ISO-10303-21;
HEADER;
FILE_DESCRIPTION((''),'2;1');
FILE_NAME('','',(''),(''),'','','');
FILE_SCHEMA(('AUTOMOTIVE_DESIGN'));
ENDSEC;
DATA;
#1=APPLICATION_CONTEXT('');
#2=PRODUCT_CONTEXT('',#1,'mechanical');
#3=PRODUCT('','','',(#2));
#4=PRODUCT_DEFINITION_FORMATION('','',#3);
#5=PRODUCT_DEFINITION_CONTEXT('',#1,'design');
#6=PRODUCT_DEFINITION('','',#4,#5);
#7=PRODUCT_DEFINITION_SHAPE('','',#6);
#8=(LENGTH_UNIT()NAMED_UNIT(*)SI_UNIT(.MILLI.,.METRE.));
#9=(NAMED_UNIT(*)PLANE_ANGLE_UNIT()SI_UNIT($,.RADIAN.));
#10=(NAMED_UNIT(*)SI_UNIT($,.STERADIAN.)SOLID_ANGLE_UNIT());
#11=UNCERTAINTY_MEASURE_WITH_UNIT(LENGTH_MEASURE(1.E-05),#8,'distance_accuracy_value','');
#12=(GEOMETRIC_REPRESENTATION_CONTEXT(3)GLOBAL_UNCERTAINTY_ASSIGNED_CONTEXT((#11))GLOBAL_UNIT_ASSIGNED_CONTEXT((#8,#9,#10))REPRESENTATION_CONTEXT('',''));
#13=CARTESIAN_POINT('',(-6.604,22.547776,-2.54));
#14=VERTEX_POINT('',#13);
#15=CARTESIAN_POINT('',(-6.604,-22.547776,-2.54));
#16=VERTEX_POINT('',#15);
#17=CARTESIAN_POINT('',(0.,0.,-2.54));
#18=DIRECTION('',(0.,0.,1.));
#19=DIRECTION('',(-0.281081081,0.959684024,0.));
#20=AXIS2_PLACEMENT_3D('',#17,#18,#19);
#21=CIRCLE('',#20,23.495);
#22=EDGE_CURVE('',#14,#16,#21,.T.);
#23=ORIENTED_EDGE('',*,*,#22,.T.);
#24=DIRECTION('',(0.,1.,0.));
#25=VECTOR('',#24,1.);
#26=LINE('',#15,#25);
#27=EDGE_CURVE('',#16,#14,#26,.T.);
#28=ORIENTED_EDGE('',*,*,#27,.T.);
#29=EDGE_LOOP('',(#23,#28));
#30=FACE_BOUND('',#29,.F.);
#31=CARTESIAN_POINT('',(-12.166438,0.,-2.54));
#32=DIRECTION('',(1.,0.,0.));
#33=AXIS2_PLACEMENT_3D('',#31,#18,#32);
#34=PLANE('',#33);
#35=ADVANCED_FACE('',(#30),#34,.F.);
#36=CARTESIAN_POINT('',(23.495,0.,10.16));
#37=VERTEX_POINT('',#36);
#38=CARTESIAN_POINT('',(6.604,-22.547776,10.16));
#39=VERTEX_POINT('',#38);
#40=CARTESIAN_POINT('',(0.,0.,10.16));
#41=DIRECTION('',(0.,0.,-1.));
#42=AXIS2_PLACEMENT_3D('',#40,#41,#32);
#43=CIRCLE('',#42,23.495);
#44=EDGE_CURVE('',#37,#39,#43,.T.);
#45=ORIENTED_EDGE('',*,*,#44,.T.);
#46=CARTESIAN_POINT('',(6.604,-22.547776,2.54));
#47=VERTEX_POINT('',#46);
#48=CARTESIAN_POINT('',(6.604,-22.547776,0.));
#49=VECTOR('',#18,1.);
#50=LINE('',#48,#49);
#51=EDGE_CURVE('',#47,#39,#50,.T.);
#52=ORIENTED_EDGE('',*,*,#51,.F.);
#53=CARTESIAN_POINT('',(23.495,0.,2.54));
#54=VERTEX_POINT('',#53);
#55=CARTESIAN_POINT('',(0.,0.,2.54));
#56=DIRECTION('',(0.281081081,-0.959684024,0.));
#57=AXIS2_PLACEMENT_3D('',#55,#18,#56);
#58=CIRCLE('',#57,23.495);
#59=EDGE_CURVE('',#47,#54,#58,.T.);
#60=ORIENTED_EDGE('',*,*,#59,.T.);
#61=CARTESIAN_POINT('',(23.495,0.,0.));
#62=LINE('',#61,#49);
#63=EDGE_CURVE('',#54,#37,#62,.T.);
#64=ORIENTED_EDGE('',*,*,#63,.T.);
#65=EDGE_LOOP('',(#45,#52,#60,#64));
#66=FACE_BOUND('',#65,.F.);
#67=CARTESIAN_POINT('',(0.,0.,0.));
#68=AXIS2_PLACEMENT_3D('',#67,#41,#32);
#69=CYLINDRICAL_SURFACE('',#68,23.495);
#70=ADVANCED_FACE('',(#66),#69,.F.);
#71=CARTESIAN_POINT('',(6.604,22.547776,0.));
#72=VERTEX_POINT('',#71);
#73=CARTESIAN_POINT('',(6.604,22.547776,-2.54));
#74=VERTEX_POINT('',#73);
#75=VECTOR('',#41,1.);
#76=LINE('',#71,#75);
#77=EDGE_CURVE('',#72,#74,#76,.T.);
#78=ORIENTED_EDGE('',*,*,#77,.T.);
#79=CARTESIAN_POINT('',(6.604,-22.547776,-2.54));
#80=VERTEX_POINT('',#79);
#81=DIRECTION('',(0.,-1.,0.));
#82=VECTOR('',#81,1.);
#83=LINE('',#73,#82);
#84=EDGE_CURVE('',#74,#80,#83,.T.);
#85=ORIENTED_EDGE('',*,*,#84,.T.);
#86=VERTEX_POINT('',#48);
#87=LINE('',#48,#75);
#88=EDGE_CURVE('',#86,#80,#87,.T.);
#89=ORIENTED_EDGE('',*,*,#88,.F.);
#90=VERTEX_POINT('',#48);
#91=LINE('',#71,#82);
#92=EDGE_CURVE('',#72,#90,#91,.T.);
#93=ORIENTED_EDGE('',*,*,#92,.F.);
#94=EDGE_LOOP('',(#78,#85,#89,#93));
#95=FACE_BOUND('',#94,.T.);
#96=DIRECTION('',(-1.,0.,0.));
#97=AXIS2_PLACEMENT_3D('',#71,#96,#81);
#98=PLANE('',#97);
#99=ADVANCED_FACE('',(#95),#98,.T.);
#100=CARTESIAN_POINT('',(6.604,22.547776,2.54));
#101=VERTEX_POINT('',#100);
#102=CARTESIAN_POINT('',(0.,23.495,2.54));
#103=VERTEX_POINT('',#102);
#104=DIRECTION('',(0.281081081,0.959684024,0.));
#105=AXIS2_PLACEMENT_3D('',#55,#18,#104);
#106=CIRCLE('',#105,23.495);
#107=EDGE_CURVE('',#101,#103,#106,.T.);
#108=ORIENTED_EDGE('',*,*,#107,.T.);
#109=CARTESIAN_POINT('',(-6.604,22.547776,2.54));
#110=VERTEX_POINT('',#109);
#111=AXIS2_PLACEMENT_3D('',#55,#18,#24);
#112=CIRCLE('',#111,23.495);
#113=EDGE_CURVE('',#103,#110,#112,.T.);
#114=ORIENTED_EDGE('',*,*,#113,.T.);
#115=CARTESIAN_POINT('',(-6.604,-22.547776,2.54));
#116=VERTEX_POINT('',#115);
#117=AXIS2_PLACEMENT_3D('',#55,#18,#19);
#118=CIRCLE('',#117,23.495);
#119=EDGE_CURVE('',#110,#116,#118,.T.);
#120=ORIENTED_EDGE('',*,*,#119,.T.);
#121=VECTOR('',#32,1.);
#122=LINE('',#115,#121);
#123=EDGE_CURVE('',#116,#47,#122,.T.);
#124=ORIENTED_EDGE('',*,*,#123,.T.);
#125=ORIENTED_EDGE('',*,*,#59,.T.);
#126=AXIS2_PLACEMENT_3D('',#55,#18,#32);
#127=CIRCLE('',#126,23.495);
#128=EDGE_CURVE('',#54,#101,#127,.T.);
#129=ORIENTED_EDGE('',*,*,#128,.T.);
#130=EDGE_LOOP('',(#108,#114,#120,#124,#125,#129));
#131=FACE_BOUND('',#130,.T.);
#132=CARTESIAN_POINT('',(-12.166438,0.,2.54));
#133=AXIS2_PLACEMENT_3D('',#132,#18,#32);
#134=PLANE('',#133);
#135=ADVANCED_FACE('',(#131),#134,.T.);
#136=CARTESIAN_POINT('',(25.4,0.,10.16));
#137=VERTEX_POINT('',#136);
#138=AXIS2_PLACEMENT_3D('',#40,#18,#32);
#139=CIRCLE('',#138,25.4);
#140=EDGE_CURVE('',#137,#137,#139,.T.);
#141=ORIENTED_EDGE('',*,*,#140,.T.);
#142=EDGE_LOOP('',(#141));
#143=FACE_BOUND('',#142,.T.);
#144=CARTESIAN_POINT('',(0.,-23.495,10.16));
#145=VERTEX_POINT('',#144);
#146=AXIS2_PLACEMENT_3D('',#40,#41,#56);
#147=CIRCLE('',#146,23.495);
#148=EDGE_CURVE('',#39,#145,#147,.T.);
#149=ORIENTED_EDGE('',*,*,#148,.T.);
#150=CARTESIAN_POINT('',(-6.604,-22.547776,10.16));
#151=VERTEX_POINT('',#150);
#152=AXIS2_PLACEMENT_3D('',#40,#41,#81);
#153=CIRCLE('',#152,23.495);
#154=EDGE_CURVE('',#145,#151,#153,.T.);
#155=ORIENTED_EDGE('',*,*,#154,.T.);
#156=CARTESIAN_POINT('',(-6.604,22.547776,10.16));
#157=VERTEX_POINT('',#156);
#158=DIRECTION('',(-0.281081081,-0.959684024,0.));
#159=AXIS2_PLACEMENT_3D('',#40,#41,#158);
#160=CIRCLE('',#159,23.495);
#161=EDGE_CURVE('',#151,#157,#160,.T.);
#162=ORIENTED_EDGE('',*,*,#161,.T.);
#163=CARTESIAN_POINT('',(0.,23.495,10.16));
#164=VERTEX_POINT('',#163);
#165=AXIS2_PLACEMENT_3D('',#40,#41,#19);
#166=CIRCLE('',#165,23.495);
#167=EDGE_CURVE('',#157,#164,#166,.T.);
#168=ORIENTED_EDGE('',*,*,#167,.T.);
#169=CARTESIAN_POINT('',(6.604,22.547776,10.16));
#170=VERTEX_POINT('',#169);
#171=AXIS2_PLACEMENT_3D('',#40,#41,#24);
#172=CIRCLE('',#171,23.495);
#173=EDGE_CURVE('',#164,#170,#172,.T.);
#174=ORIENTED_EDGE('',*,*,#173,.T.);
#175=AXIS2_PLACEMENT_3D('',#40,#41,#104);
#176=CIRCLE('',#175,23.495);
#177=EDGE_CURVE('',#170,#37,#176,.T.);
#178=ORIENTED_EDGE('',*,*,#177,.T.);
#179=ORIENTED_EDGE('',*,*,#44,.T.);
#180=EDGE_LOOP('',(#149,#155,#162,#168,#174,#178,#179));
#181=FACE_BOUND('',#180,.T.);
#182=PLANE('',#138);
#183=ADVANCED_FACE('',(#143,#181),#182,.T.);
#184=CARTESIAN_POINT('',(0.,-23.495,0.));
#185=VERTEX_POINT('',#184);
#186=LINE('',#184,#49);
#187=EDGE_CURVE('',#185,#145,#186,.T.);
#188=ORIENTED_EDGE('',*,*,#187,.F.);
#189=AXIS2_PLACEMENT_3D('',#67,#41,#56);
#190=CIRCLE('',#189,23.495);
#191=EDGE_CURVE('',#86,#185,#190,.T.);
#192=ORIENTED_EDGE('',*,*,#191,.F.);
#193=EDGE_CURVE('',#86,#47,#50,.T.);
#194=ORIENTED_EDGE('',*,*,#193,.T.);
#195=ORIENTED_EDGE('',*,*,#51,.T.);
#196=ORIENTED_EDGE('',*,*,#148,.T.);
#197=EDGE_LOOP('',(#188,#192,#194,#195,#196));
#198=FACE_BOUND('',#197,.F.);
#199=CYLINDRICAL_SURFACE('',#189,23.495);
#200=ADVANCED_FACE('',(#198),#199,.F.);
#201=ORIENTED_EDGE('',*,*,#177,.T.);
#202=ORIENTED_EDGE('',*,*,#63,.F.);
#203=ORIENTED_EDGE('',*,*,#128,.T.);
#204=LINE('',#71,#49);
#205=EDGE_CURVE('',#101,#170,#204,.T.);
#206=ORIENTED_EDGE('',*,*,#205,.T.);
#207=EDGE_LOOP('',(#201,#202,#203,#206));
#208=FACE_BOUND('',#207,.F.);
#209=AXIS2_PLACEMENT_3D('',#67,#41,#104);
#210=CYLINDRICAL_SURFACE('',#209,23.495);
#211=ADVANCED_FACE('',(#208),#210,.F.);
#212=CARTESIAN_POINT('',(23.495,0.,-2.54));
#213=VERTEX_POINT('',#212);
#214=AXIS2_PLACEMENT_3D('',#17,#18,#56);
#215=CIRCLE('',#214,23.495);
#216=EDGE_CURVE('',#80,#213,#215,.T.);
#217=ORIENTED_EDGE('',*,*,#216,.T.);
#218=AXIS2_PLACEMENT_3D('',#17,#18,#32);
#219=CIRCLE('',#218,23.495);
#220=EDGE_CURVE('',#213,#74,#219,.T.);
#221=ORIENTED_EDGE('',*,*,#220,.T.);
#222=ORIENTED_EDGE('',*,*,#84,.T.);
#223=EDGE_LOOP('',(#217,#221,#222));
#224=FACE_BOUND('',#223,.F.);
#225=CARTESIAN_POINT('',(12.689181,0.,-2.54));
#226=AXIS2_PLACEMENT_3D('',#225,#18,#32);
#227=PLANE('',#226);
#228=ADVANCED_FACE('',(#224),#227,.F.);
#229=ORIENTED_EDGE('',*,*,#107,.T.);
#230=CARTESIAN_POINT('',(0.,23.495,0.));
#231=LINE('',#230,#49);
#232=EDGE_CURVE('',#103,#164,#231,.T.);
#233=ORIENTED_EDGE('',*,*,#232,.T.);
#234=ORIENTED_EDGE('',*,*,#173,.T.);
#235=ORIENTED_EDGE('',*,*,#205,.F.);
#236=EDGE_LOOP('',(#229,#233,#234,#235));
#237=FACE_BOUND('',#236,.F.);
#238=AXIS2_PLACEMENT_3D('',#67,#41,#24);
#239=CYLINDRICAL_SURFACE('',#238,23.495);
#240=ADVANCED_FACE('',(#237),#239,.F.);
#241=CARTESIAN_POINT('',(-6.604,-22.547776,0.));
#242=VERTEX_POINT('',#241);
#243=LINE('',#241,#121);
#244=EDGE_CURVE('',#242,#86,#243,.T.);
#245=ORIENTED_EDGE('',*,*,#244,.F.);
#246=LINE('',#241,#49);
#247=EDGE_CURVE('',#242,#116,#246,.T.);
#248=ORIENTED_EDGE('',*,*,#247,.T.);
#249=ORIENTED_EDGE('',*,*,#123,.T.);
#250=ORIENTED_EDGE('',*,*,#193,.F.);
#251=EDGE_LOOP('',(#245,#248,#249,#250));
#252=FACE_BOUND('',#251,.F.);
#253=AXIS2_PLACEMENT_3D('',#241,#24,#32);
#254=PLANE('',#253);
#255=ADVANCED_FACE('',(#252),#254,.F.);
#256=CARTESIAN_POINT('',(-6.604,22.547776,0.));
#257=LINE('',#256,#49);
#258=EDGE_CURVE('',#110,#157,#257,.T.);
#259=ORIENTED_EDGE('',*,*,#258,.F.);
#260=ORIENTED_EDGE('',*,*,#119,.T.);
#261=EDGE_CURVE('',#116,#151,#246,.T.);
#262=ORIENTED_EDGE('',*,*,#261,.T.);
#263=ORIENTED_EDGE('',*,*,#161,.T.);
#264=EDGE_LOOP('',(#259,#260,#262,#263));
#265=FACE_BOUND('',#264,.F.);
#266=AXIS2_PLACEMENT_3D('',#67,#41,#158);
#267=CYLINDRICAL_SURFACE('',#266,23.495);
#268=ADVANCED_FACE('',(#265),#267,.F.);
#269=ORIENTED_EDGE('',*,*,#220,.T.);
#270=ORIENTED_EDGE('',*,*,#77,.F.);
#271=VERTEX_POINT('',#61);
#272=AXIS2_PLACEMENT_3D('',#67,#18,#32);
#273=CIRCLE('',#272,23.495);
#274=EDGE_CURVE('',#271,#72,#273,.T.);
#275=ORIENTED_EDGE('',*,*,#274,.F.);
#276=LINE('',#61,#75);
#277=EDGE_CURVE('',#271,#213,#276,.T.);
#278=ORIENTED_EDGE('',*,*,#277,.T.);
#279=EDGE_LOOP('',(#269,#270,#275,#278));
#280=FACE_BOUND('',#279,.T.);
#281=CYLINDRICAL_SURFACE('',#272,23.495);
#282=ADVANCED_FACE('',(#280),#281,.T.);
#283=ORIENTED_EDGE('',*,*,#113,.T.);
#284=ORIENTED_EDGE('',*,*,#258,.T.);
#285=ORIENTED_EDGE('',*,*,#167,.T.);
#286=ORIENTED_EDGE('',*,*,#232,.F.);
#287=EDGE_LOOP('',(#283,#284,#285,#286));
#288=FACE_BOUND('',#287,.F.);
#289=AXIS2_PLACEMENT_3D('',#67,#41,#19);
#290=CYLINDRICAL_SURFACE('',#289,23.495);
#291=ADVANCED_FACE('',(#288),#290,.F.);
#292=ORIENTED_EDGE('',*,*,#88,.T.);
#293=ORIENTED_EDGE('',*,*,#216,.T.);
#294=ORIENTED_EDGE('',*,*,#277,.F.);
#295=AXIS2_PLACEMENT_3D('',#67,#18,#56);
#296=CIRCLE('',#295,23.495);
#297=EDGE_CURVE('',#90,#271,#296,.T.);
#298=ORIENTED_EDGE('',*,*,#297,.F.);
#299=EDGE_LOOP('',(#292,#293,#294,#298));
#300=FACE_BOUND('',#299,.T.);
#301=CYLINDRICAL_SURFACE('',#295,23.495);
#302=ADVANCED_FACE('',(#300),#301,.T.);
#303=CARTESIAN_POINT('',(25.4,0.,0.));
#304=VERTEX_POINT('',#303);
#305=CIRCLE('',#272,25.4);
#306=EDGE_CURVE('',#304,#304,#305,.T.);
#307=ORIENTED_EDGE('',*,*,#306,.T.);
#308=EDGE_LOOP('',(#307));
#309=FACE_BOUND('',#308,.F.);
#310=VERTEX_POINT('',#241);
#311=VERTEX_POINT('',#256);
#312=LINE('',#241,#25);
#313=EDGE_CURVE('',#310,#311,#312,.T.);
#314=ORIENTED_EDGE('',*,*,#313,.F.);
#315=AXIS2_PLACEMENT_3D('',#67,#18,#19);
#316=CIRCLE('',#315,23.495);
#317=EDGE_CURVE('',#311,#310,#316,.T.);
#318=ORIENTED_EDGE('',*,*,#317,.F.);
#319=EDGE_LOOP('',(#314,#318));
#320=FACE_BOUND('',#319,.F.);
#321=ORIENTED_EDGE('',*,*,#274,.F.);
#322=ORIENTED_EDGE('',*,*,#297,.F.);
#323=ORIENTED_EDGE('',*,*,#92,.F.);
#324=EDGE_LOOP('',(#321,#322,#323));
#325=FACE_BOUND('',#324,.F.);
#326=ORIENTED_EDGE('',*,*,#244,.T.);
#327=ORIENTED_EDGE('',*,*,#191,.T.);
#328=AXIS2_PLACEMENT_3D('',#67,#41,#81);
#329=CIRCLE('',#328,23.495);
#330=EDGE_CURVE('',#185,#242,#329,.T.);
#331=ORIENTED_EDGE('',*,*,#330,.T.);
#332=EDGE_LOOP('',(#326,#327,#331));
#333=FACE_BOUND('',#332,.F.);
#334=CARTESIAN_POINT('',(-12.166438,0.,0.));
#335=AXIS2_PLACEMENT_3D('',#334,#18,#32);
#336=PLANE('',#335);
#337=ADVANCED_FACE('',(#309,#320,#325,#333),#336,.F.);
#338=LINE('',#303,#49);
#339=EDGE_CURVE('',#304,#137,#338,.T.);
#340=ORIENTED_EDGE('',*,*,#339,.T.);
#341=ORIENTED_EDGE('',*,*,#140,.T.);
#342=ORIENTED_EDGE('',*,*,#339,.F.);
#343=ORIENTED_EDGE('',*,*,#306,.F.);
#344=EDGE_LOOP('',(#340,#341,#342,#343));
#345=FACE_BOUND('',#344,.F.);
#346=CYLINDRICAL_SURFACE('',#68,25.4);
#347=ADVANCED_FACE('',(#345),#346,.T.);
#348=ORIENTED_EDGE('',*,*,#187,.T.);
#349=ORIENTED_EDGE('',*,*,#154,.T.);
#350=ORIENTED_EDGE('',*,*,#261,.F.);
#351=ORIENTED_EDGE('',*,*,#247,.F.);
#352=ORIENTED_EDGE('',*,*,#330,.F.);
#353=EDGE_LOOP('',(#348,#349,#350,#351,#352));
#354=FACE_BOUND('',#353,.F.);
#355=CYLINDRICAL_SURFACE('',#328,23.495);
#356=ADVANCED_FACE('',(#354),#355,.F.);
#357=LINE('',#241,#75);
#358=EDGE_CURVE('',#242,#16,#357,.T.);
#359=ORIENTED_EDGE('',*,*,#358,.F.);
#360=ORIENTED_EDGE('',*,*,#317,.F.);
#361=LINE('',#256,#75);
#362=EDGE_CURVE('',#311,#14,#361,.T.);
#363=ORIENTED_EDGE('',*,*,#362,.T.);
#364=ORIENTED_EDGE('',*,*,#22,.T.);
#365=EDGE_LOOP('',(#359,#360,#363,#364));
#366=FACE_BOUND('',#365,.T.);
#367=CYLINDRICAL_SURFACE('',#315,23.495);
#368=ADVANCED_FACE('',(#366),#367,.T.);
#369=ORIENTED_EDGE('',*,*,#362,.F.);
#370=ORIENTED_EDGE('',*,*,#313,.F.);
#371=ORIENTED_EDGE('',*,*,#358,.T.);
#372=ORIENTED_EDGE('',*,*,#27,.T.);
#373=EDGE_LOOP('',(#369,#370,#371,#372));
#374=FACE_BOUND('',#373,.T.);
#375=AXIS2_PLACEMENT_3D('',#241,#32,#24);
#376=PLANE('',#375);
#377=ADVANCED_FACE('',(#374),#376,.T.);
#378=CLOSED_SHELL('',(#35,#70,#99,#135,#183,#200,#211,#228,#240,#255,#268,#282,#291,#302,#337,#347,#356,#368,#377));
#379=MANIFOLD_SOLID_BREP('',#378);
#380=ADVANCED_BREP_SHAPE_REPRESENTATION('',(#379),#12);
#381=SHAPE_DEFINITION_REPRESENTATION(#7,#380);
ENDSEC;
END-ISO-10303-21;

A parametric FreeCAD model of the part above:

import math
import FreeCAD as App
import Part
import Sketcher
from FreeCAD import Vector
Q = App.Units.Quantity

doc = App.newDocument("Part")
body = doc.addObject("PartDesign::Body", "Body")

sketch1 = body.newObject("Sketcher::SketchObject", "Sketch")
sketch1.AttachmentSupport = (doc.getObject("XY_Plane"), [""])
sketch1.MapMode = "FlatFace"
sketch1.addGeometry([
    Part.Circle(Vector(0, 0, 0), Vector(0, 0, 1), 25.4),
    Part.ArcOfCircle(Part.Circle(Vector(0, 0, 0), Vector(0, 0, 1), 23.495), math.radians(-90), math.radians(-73.675262)),
    Part.ArcOfCircle(Part.Circle(Vector(0, 0, 0), Vector(0, 0, 1), 23.495), math.radians(-106.324738), math.radians(-90)),
    Part.ArcOfCircle(Part.Circle(Vector(0, 0, 0), Vector(0, 0, 1), 23.495), math.radians(106.324738), math.radians(253.675262)),
    Part.ArcOfCircle(Part.Circle(Vector(0, 0, 0), Vector(0, 0, 1), 23.495), math.radians(90), math.radians(106.324738)),
    Part.ArcOfCircle(Part.Circle(Vector(0, 0, 0), Vector(0, 0, 1), 23.495), math.radians(73.675262), math.radians(90)),
    Part.ArcOfCircle(Part.Circle(Vector(0, 0, 0), Vector(0, 0, 1), 23.495), math.radians(0), math.radians(73.675262)),
    Part.ArcOfCircle(Part.Circle(Vector(0, 0, 0), Vector(0, 0, 1), 23.495), math.radians(-73.675262), math.radians(0)),
], False)
sketch1.addConstraint([
    Sketcher.Constraint("Tangent", 1, 1, 2, 2),
    Sketcher.Constraint("Tangent", 2, 1, 3, 2),
    Sketcher.Constraint("Tangent", 3, 1, 4, 2),
    Sketcher.Constraint("Tangent", 4, 1, 5, 2),
    Sketcher.Constraint("Tangent", 5, 1, 6, 2),
    Sketcher.Constraint("Tangent", 6, 1, 7, 2),
    Sketcher.Constraint("Tangent", 7, 1, 1, 2),
    Sketcher.Constraint("Coincident", 0, 3, -1, 1),
    Sketcher.Constraint("Coincident", 1, 3, -1, 1),
    Sketcher.Constraint("Coincident", 3, 3, -1, 1),
    Sketcher.Constraint("Coincident", 5, 3, -1, 1),
    Sketcher.Constraint("PointOnObject", 1, 1, -2),
    Sketcher.Constraint("PointOnObject", 4, 1, -2),
    Sketcher.Constraint("PointOnObject", 6, 1, -1),
    Sketcher.Constraint("Horizontal", 3, 1, 5, 1),
    Sketcher.Constraint("Horizontal", 2, 1, 7, 1),
    Sketcher.Constraint("Vertical", 2, 1, 3, 1),
    Sketcher.Constraint("Diameter", 0, Q("2 in")),
    Sketcher.Constraint("Radius", 1, Q("0.925 in")),
    Sketcher.Constraint("DistanceX", 2, 1, -1, 1, Q("0.26 in")),
])
pad1 = body.newObject("PartDesign::Pad", "Pad")
pad1.Profile = sketch1
pad1.Length = Q("0.4 in")

sketch2 = body.newObject("Sketcher::SketchObject", "Sketch001")
sketch2.AttachmentSupport = (doc.getObject("XY_Plane"), [""])
sketch2.MapMode = "FlatFace"
sketch2.addGeometry([
    Part.ArcOfCircle(Part.Circle(Vector(0, 0, 0), Vector(0, 0, 1), 23.495), math.radians(106.324738), math.radians(253.675262)),
    Part.LineSegment(Vector(-6.604, -22.547776, 0), Vector(6.604, -22.547776, 0)),
    Part.ArcOfCircle(Part.Circle(Vector(0, 0, 0), Vector(0, 0, 1), 23.495), math.radians(-73.675262), math.radians(0)),
    Part.ArcOfCircle(Part.Circle(Vector(0, 0, 0), Vector(0, 0, 1), 23.495), math.radians(0), math.radians(73.675262)),
    Part.ArcOfCircle(Part.Circle(Vector(0, 0, 0), Vector(0, 0, 1), 23.495), math.radians(73.675262), math.radians(90)),
    Part.ArcOfCircle(Part.Circle(Vector(0, 0, 0), Vector(0, 0, 1), 23.495), math.radians(90), math.radians(106.324738)),
], False)
sketch2.addConstraint([
    Sketcher.Constraint("Coincident", 0, 2, 1, 1),
    Sketcher.Constraint("Coincident", 1, 2, 2, 1),
    Sketcher.Constraint("Tangent", 2, 2, 3, 1),
    Sketcher.Constraint("Tangent", 3, 2, 4, 1),
    Sketcher.Constraint("Tangent", 4, 2, 5, 1),
    Sketcher.Constraint("Tangent", 5, 2, 0, 1),
    Sketcher.Constraint("Horizontal", 1),
    Sketcher.Constraint("Coincident", 0, 3, -1, 1),
    Sketcher.Constraint("Coincident", 2, 3, -1, 1),
    Sketcher.Constraint("Coincident", 4, 3, -1, 1),
    Sketcher.Constraint("PointOnObject", 2, 2, -1),
    Sketcher.Constraint("PointOnObject", 4, 2, -2),
    Sketcher.Constraint("Horizontal", 3, 2, 5, 2),
    Sketcher.Constraint("Vertical", 1, 2, 3, 2),
    Sketcher.Constraint("Radius", 0, Q("0.925 in")),
    Sketcher.Constraint("DistanceX", 1, 1, 1, 2, Q("0.52 in")),
])
pad2 = body.newObject("PartDesign::Pad", "Pad001")
pad2.Profile = sketch2
pad2.Length = Q("0.1 in")

sketch3 = body.newObject("Sketcher::SketchObject", "Sketch002")
sketch3.AttachmentSupport = (doc.getObject("XY_Plane"), [""])
sketch3.MapMode = "FlatFace"
sketch3.addGeometry([
    Part.ArcOfCircle(Part.Circle(Vector(0, 0, 0), Vector(0, 0, 1), 23.495), math.radians(106.324738), math.radians(253.675262)),
    Part.LineSegment(Vector(-6.604, -22.547776, 0), Vector(-6.604, 22.547776, 0)),
    Part.LineSegment(Vector(6.604, 22.547776, 0), Vector(6.604, -22.547776, 0)),
    Part.ArcOfCircle(Part.Circle(Vector(0, 0, 0), Vector(0, 0, 1), 23.495), math.radians(-73.675262), math.radians(0)),
    Part.ArcOfCircle(Part.Circle(Vector(0, 0, 0), Vector(0, 0, 1), 23.495), math.radians(0), math.radians(73.675262)),
], False)
sketch3.addConstraint([
    Sketcher.Constraint("Coincident", 0, 1, 1, 2),
    Sketcher.Constraint("Coincident", 1, 1, 0, 2),
    Sketcher.Constraint("Coincident", 2, 2, 3, 1),
    Sketcher.Constraint("Tangent", 3, 2, 4, 1),
    Sketcher.Constraint("Coincident", 4, 2, 2, 1),
    Sketcher.Constraint("Vertical", 1),
    Sketcher.Constraint("Vertical", 2),
    Sketcher.Constraint("Coincident", 0, 3, -1, 1),
    Sketcher.Constraint("Coincident", 3, 3, -1, 1),
    Sketcher.Constraint("Equal", 0, 3),
    Sketcher.Constraint("Equal", 3, 4),
    Sketcher.Constraint("PointOnObject", 3, 2, -1),
    Sketcher.Constraint("Horizontal", 1, 1, 2, 2),
    Sketcher.Constraint("Radius", 0, Q("0.925 in")),
    Sketcher.Constraint("DistanceX", 0, 1, -1, 1, Q("0.26 in")),
])
pad3 = body.newObject("PartDesign::Pad", "Pad002")
pad3.Profile = sketch3
pad3.Length = Q("0.1 in")
pad3.Reversed = True

doc.recompute()
